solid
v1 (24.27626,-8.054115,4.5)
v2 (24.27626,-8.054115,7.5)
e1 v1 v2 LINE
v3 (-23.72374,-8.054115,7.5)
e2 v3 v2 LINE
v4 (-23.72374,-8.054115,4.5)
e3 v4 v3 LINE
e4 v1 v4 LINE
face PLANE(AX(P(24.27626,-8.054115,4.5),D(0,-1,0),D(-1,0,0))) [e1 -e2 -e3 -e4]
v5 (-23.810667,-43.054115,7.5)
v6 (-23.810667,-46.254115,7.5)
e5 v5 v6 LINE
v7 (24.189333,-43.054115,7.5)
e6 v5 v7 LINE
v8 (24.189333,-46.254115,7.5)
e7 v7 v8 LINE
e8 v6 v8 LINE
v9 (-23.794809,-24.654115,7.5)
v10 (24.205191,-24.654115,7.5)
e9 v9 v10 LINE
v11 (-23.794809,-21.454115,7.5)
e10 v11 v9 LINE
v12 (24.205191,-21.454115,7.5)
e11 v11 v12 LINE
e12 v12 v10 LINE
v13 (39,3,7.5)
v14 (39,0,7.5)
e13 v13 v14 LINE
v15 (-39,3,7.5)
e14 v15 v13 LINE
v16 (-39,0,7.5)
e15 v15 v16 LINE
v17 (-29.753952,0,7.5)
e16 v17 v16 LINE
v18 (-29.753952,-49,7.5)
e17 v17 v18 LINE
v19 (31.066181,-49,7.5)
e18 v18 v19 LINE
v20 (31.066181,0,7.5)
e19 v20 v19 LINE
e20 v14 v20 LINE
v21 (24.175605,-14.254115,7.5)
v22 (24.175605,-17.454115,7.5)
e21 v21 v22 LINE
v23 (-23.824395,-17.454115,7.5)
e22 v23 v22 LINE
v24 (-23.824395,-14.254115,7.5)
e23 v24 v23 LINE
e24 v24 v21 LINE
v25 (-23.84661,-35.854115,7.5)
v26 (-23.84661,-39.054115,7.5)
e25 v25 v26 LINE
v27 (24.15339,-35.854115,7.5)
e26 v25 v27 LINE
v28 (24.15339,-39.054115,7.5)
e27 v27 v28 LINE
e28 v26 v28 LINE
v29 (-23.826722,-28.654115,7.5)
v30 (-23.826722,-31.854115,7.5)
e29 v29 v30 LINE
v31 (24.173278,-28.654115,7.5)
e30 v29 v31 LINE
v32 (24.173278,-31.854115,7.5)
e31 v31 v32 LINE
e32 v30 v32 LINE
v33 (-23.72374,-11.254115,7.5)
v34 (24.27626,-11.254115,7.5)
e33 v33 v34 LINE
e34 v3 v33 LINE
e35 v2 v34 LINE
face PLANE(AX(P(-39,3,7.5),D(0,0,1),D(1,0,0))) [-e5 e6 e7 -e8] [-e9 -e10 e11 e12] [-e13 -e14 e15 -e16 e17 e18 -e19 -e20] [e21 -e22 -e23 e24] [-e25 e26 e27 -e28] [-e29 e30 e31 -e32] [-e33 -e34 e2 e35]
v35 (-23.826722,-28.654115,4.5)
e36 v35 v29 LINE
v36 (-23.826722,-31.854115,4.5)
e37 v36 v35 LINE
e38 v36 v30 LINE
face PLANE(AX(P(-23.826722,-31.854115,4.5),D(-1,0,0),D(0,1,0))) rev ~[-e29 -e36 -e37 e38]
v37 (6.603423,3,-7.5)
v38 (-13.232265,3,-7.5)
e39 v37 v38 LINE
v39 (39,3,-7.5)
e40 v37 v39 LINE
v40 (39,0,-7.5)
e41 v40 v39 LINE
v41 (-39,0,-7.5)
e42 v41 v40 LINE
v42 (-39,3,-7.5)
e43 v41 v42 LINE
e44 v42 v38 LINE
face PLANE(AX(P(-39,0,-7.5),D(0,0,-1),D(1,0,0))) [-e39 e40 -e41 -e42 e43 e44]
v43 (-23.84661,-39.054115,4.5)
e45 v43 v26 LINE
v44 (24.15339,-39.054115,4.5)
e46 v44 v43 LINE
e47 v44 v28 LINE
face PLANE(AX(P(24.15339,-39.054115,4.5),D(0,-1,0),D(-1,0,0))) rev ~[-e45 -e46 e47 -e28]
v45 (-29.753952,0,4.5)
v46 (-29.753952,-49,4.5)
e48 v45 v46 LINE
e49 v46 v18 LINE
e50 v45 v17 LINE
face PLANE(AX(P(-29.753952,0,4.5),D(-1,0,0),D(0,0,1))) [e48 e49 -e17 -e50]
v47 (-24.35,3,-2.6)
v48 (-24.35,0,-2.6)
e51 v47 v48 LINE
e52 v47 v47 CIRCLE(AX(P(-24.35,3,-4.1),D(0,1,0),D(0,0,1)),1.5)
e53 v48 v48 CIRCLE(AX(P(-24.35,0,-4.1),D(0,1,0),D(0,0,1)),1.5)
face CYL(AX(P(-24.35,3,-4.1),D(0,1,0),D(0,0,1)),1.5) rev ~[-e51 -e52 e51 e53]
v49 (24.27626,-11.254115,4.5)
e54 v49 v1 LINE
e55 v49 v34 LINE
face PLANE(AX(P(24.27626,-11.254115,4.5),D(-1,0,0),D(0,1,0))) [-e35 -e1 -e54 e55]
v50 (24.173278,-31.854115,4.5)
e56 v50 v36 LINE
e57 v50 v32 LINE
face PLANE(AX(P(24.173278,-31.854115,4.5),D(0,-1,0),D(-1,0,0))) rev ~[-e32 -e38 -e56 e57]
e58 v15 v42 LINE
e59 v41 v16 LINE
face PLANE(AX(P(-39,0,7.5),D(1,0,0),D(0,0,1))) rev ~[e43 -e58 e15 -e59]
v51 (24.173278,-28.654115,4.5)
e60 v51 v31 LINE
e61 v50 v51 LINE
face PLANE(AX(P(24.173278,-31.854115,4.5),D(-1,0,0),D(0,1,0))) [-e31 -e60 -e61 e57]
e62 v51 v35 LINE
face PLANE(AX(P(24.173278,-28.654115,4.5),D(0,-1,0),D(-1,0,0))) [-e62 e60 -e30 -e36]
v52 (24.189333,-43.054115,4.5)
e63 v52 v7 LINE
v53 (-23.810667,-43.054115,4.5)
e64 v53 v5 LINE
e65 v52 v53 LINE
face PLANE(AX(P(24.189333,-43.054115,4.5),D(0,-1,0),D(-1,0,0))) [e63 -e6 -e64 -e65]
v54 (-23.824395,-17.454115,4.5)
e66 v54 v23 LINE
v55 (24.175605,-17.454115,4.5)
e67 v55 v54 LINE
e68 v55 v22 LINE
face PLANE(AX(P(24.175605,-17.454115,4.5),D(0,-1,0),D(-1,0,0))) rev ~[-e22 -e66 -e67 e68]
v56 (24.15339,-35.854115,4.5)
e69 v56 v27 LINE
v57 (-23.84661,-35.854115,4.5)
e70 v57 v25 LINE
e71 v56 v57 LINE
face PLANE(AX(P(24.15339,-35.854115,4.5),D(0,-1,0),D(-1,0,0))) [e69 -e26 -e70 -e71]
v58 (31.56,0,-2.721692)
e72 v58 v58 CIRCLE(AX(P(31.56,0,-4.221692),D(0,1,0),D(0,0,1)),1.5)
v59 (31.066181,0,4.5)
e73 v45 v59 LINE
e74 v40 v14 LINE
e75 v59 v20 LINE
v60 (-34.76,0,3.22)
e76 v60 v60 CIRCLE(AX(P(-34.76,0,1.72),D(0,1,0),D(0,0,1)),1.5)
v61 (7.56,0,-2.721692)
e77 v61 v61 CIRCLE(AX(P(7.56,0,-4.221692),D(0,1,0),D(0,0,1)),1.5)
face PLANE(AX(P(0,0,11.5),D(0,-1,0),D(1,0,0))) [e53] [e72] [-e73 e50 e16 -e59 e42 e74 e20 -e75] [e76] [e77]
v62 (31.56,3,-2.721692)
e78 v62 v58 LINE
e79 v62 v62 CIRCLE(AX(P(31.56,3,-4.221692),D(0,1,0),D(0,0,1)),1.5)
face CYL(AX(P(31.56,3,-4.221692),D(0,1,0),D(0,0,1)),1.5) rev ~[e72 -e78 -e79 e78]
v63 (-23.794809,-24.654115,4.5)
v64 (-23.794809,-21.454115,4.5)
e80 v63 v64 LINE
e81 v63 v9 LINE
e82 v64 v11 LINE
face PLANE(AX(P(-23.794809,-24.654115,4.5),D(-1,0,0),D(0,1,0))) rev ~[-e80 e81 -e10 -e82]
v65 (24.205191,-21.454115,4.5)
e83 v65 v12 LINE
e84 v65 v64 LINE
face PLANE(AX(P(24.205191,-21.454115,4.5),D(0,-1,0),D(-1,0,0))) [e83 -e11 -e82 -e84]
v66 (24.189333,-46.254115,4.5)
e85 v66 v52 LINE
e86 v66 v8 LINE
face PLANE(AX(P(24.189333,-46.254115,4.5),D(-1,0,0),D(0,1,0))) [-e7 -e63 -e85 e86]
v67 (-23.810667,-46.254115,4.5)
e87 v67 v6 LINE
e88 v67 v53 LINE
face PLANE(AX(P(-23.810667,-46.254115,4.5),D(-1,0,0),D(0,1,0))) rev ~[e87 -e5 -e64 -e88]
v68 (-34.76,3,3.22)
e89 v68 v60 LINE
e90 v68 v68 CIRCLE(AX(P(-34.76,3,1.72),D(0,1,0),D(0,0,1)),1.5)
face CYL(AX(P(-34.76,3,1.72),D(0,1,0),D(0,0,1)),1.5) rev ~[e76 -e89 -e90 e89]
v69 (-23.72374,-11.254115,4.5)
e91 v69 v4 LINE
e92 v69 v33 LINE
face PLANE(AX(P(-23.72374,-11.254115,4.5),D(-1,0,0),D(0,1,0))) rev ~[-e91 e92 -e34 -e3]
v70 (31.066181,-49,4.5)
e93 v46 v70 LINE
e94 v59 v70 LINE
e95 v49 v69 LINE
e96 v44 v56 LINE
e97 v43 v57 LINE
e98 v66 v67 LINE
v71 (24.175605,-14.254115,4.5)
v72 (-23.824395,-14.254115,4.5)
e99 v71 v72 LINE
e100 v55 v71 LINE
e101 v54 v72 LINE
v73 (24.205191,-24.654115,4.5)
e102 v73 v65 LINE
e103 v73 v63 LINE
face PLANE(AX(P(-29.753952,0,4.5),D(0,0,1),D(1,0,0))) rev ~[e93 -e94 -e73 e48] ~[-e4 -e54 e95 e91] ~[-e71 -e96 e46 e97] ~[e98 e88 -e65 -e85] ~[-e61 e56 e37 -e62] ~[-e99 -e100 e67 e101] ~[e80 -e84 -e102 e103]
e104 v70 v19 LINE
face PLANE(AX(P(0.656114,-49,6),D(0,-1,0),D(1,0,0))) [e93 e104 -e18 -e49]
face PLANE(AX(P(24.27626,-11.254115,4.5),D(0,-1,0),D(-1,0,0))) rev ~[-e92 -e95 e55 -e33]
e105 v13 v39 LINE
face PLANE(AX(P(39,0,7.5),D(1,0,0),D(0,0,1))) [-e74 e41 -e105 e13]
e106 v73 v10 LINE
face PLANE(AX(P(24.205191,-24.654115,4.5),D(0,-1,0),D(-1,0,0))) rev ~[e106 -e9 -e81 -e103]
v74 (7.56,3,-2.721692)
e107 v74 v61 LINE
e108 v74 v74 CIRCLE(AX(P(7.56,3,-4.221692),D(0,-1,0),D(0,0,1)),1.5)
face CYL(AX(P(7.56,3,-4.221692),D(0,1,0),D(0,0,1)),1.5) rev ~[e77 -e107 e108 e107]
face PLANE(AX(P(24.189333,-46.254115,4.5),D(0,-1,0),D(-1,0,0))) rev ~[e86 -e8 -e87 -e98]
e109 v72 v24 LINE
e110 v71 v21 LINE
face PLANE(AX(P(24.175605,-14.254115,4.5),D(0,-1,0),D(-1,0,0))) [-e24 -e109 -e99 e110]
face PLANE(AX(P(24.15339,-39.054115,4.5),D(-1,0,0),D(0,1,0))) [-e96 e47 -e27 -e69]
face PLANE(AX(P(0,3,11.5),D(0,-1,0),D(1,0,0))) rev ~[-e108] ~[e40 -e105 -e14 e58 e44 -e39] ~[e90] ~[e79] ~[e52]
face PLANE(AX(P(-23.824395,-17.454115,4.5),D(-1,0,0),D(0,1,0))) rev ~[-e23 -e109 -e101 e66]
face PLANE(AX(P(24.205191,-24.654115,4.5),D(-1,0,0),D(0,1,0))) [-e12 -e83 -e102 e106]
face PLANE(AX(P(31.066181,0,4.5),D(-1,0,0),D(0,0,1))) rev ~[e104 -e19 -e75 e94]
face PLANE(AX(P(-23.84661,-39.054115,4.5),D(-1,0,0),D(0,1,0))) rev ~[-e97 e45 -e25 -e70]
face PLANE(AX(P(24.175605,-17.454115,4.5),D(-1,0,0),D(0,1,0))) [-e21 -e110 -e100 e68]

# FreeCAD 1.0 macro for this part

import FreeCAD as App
import Part
import Sketcher

V = App.Vector
Q = App.Units.Quantity

doc = App.newDocument("Part")
body = doc.addObject("PartDesign::Body", "Body")

# Sketch on XZ plane
sketch1 = body.newObject("Sketcher::SketchObject", "Sketch")
sketch1.AttachmentSupport = (doc.getObject("XZ_Plane"), [""])
sketch1.MapMode = "FlatFace"
sketch1.addGeometry([
    Part.LineSegment(V(-39, -8, 0), V(-39, 8, 0)),
    Part.LineSegment(V(-39, 8, 0), V(39, 8, 0)),
    Part.LineSegment(V(39, 8, 0), V(39, -8, 0)),
    Part.LineSegment(V(39, -8, 0), V(-39, -8, 0)),
], False)
sketch1.addConstraint([
    Sketcher.Constraint("Coincident", 0, 2, 1, 1),
    Sketcher.Constraint("Coincident", 1, 2, 2, 1),
    Sketcher.Constraint("Coincident", 2, 2, 3, 1),
    Sketcher.Constraint("Coincident", 3, 2, 0, 1),
    Sketcher.Constraint("Vertical", 0),
    Sketcher.Constraint("Horizontal", 1),
    Sketcher.Constraint("Vertical", 2),
    Sketcher.Constraint("Horizontal", 3),
    Sketcher.Constraint("Symmetric", 0, 2, 2, 2, -1, 1),
    Sketcher.Constraint("DistanceX", 1, 1, 1, 2, Q("78 mm")),
    Sketcher.Constraint("DistanceY", 0, 1, 0, 2, Q("15 mm")),
])
pad1 = body.newObject("PartDesign::Pad", "Pad")
pad1.Profile = sketch1
pad1.Length = 3
pad1.Reversed = True

# Sketch on XZ plane
sketch2 = body.newObject("Sketcher::SketchObject", "Sketch001")
sketch2.AttachmentSupport = (doc.getObject("XZ_Plane"), [""])
sketch2.MapMode = "FlatFace"
sketch2.AttachmentOffset = App.Placement(V(0, 0, -3), App.Rotation())
sketch2.addGeometry([
    Part.Circle(V(-34.8, 1.7, 0), V(0, 0, 1), 1.5),
    Part.Circle(V(-24.4, -4.1, 0), V(0, 0, 1), 1.5),
    Part.Circle(V(31.6, -4.2, 0), V(0, 0, 1), 1.5),
    Part.Circle(V(7.6, -4.2, 0), V(0, 0, 1), 1.5),
], False)
sketch2.addConstraint([
    Sketcher.Constraint("Equal", 0, 1),
    Sketcher.Constraint("Equal", 1, 2),
    Sketcher.Constraint("Equal", 2, 3),
    Sketcher.Constraint("Horizontal", 2, 3, 3, 3),
    Sketcher.Constraint("Diameter", 0, Q("3 mm")),
    Sketcher.Constraint("DistanceX", 3, 3, 2, 3, Q("24 mm")),
    Sketcher.Constraint("DistanceY", 1, 3, -1, 1, Q("4.1 mm")),
    Sketcher.Constraint("DistanceX", 0, 3, -1, 1, Q("34.76 mm")),
    Sketcher.Constraint("DistanceY", -1, 1, 0, 3, Q("1.72 mm")),
    Sketcher.Constraint("DistanceX", 1, 3, -1, 1, Q("24.35 mm")),
    Sketcher.Constraint("DistanceX", -1, 1, 2, 3, Q("31.56 mm")),
    Sketcher.Constraint("DistanceY", 2, 3, -1, 1, Q("4.221692 mm")),
])
pocket1 = body.newObject("PartDesign::Pocket", "Pocket")
pocket1.Profile = sketch2
pocket1.Length = 3
pocket1.Reversed = True

# Sketch on XZ plane
sketch3 = body.newObject("Sketcher::SketchObject", "Sketch002")
sketch3.AttachmentSupport = (doc.getObject("XZ_Plane"), [""])
sketch3.MapMode = "FlatFace"
sketch3.AttachmentOffset = App.Placement(V(0, 0, -3), App.Rotation())
sketch3.addGeometry(Part.Circle(V(-3, 1, 0), V(0, 0, 1), 6), False)
sketch3.addConstraint([
    Sketcher.Constraint("Diameter", 0, Q("12 mm")),
    Sketcher.Constraint("DistanceX", 0, 3, -1, 1, Q("3 mm")),
    Sketcher.Constraint("DistanceY", -1, 1, 0, 3, Q("1.234165 mm")),
])
pad2 = body.newObject("PartDesign::Pad", "Pad001")
pad2.Profile = sketch3
pad2.Length = 18
pad2.Reversed = True

# Sketch on XZ plane
sketch4 = body.newObject("Sketcher::SketchObject", "Sketch003")
sketch4.AttachmentSupport = (doc.getObject("XZ_Plane"), [""])
sketch4.MapMode = "FlatFace"
sketch4.AttachmentOffset = App.Placement(V(0, 0, -21), App.Rotation())
sketch4.addGeometry(Part.Circle(V(-3, 1.2, 0), V(0, 0, 1), 4.5), False)
sketch4.addConstraint([
    Sketcher.Constraint("Diameter", 0, Q("9 mm")),
    Sketcher.Constraint("DistanceX", 0, 3, -1, 1, Q("3 mm")),
    Sketcher.Constraint("DistanceY", -1, 1, 0, 3, Q("1.234165 mm")),
])
pocket2 = body.newObject("PartDesign::Pocket", "Pocket001")
pocket2.Profile = sketch4
pocket2.Length = 21
pocket2.Reversed = True

# Sketch on an angled plane
sketch5 = body.newObject("Sketcher::SketchObject", "Sketch004")
sketch5.Placement = App.Placement(V(-7.484763, 0, 5.284905), App.Rotation(V(-0.576795601, 0, -0.816888508), V(0, -1, 0), V(-0.816888508, 0, 0.576795601), "ZXY"))
sketch5.addGeometry(Part.Circle(V(0.7, -17.3, 0), V(0, 0, 1), 1.5), False)
sketch5.addConstraint([
    Sketcher.Constraint("Diameter", 0, Q("3 mm")),
    Sketcher.Constraint("DistanceX", -1, 1, 0, 3, Q("0.722211 mm")),
    Sketcher.Constraint("DistanceY", 0, 3, -1, 1, Q("17.342107 mm")),
])
doc.recompute()
hole = body.newObject("PartDesign::Hole", "Hole")
hole.Profile = sketch5
hole.ThreadType = "None"
hole.Diameter = 3
hole.DepthType = "Dimension"
hole.Depth = 4.5
hole.DrillPoint = "Angled"
hole.DrillPointAngle = 90

# Sketch on an angled plane
sketch6 = body.newObject("Sketcher::SketchObject", "Sketch005")
sketch6.Placement = App.Placement(V(3.305316, 0, 3.577367), App.Rotation(V(0.734483043, 0, -0.67862704), V(0, 1, 0), V(0.67862704, 0, 0.734483043), "ZXY"))
sketch6.addGeometry(Part.Circle(V(-3, 17.2, 0), V(0, 0, 1), 1.5), False)
sketch6.addConstraint([
    Sketcher.Constraint("Diameter", 0, Q("3 mm")),
    Sketcher.Constraint("DistanceX", 0, 3, -1, 1, Q("3.040983 mm")),
    Sketcher.Constraint("DistanceY", -1, 1, 0, 3, Q("17.164817 mm")),
])
doc.recompute()
hole2 = body.newObject("PartDesign::Hole", "Hole001")
hole2.Profile = sketch6
hole2.ThreadType = "None"
hole2.Diameter = 3
hole2.DepthType = "Dimension"
hole2.Depth = 4.5
hole2.DrillPoint = "Angled"
hole2.DrillPointAngle = 90

# Sketch on XY plane
sketch7 = body.newObject("Sketcher::SketchObject", "Sketch006")
sketch7.AttachmentSupport = (doc.getObject("XY_Plane"), [""])
sketch7.MapMode = "FlatFace"
sketch7.AttachmentOffset = App.Placement(V(0, 0, -7.5), App.Rotation())
sketch7.addGeometry([
    Part.LineSegment(V(0, 13, 0), V(0, 3, 0)),
    Part.LineSegment(V(0, 3, 0), V(-6, 3, 0)),
    Part.LineSegment(V(-6, 3, 0), V(-6, 13, 0)),
    Part.LineSegment(V(-6, 13, 0), V(0, 13, 0)),
], False)
sketch7.addConstraint([
    Sketcher.Constraint("Coincident", 0, 2, 1, 1),
    Sketcher.Constraint("Coincident", 1, 2, 2, 1),
    Sketcher.Constraint("Coincident", 2, 2, 3, 1),
    Sketcher.Constraint("Coincident", 3, 2, 0, 1),
    Sketcher.Constraint("Vertical", 0),
    Sketcher.Constraint("Horizontal", 1),
    Sketcher.Constraint("Vertical", 2),
    Sketcher.Constraint("Horizontal", 3),
    Sketcher.Constraint("PointOnObject", 0, 2, -2),
    Sketcher.Constraint("DistanceX", 1, 2, 1, 1, Q("6 mm")),
    Sketcher.Constraint("DistanceY", 0, 2, 0, 1, Q("10 mm")),
    Sketcher.Constraint("DistanceY", -1, 1, 0, 2, Q("3 mm")),
])
pocket3 = body.newObject("PartDesign::Pocket", "Pocket002")
pocket3.Profile = sketch7
pocket3.Length = 7
pocket3.Reversed = True

# Sketch on XY plane
sketch8 = body.newObject("Sketcher::SketchObject", "Sketch007")
sketch8.AttachmentSupport = (doc.getObject("XY_Plane"), [""])
sketch8.MapMode = "FlatFace"
sketch8.AttachmentOffset = App.Placement(V(0, 0, -7.5), App.Rotation())
sketch8.addGeometry([
    Part.LineSegment(V(7, 25, 0), V(7, 3, 0)),
    Part.LineSegment(V(7, 3, 0), V(-13, 3, 0)),
    Part.LineSegment(V(-13, 3, 0), V(-13, 25, 0)),
    Part.LineSegment(V(-13, 25, 0), V(7, 25, 0)),
], False)
sketch8.addConstraint([
    Sketcher.Constraint("Coincident", 0, 2, 1, 1),
    Sketcher.Constraint("Coincident", 1, 2, 2, 1),
    Sketcher.Constraint("Coincident", 2, 2, 3, 1),
    Sketcher.Constraint("Coincident", 3, 2, 0, 1),
    Sketcher.Constraint("Vertical", 0),
    Sketcher.Constraint("Horizontal", 1),
    Sketcher.Constraint("Vertical", 2),
    Sketcher.Constraint("Horizontal", 3),
    Sketcher.Constraint("DistanceY", -1, 1, 0, 2, Q("3 mm")),
    Sketcher.Constraint("DistanceX", 1, 2, 1, 1, Q("19.835687 mm")),
    Sketcher.Constraint("DistanceY", 0, 2, 0, 1, Q("21.610205 mm")),
    Sketcher.Constraint("DistanceX", -1, 1, 0, 2, Q("6.603423 mm")),
])
pocket4 = body.newObject("PartDesign::Pocket", "Pocket003")
pocket4.Profile = sketch8
pocket4.Length = 20
pocket4.Reversed = True

# Sketch on XZ plane
sketch9 = body.newObject("Sketcher::SketchObject", "Sketch008")
sketch9.AttachmentSupport = (doc.getObject("XZ_Plane"), [""])
sketch9.MapMode = "FlatFace"
sketch9.AttachmentOffset = App.Placement(V(0, 0, -3), App.Rotation())
sketch9.addGeometry([
    Part.LineSegment(V(-9, -4, 0), V(-9, 7, 0)),
    Part.LineSegment(V(-9, 7, 0), V(3, 7, 0)),
    Part.LineSegment(V(3, 7, 0), V(3, -4, 0)),
    Part.LineSegment(V(3, -4, 0), V(-9, -4, 0)),
], False)
sketch9.addConstraint([
    Sketcher.Constraint("Coincident", 0, 2, 1, 1),
    Sketcher.Constraint("Coincident", 1, 2, 2, 1),
    Sketcher.Constraint("Coincident", 2, 2, 3, 1),
    Sketcher.Constraint("Coincident", 3, 2, 0, 1),
    Sketcher.Constraint("Vertical", 0),
    Sketcher.Constraint("Horizontal", 1),
    Sketcher.Constraint("Vertical", 2),
    Sketcher.Constraint("Horizontal", 3),
    Sketcher.Constraint("DistanceX", 1, 1, 1, 2, Q("11.523038 mm")),
    Sketcher.Constraint("DistanceY", 0, 1, 0, 2, Q("10.490313 mm")),
    Sketcher.Constraint("DistanceY", -1, 1, 0, 2, Q("6.50865 mm")),
    Sketcher.Constraint("DistanceX", -1, 1, 1, 2, Q("2.772052 mm")),
])
pad3 = body.newObject("PartDesign::Pad", "Pad002")
pad3.Profile = sketch9
pad3.Length = 3

# Sketch on XZ plane
sketch10 = body.newObject("Sketcher::SketchObject", "Sketch009")
sketch10.AttachmentSupport = (doc.getObject("XZ_Plane"), [""])
sketch10.MapMode = "FlatFace"
sketch10.addGeometry([
    Part.LineSegment(V(-39, 16, 0), V(-39, 8, 0)),
    Part.LineSegment(V(-39, 8, 0), V(39, 8, 0)),
    Part.LineSegment(V(39, 8, 0), V(39, 16, 0)),
    Part.LineSegment(V(39, 16, 0), V(-39, 16, 0)),
], False)
sketch10.addConstraint([
    Sketcher.Constraint("Coincident", 0, 2, 1, 1),
    Sketcher.Constraint("Coincident", 1, 2, 2, 1),
    Sketcher.Constraint("Coincident", 2, 2, 3, 1),
    Sketcher.Constraint("Coincident", 3, 2, 0, 1),
    Sketcher.Constraint("Vertical", 0),
    Sketcher.Constraint("Horizontal", 1),
    Sketcher.Constraint("Vertical", 2),
    Sketcher.Constraint("Horizontal", 3),
    Sketcher.Constraint("DistanceX", 1, 1, 1, 2, Q("78 mm")),
    Sketcher.Constraint("DistanceY", 0, 2, 0, 1, Q("8 mm")),
    Sketcher.Constraint("DistanceX", 0, 2, -1, 1, Q("39 mm")),
    Sketcher.Constraint("DistanceY", -1, 1, 0, 2, Q("7.5 mm")),
])
pad4 = body.newObject("PartDesign::Pad", "Pad003")
pad4.Profile = sketch10
pad4.Length = 3
pad4.Reversed = True

# Sketch on XZ plane
sketch11 = body.newObject("Sketcher::SketchObject", "Sketch010")
sketch11.AttachmentSupport = (doc.getObject("XZ_Plane"), [""])
sketch11.MapMode = "FlatFace"
sketch11.addGeometry([
    Part.LineSegment(V(-17.5, 15.5, 0), V(-17.5, 13, 0)),
    Part.LineSegment(V(-17.5, 13, 0), V(19.2, 13, 0)),
    Part.LineSegment(V(19.2, 13, 0), V(19.2, 15.5, 0)),
    Part.LineSegment(V(19.2, 15.5, 0), V(-17.5, 15.5, 0)),
], False)
sketch11.addConstraint([
    Sketcher.Constraint("Coincident", 0, 2, 1, 1),
    Sketcher.Constraint("Coincident", 1, 2, 2, 1),
    Sketcher.Constraint("Coincident", 2, 2, 3, 1),
    Sketcher.Constraint("Coincident", 3, 2, 0, 1),
    Sketcher.Constraint("Vertical", 0),
    Sketcher.Constraint("Horizontal", 1),
    Sketcher.Constraint("Vertical", 2),
    Sketcher.Constraint("Horizontal", 3),
    Sketcher.Constraint("DistanceY", 0, 2, 0, 1, Q("2.5 mm")),
    Sketcher.Constraint("DistanceY", -1, 1, 0, 2, Q("13 mm")),
    Sketcher.Constraint("DistanceX", 1, 1, 1, 2, Q("36.767904 mm")),
    Sketcher.Constraint("DistanceX", -1, 1, 1, 2, Q("19.223189 mm")),
])
pad5 = body.newObject("PartDesign::Pad", "Pad004")
pad5.Profile = sketch11
pad5.Length = 12.5

# Sketch on XY plane
sketch12 = body.newObject("Sketcher::SketchObject", "Sketch011")
sketch12.AttachmentSupport = (doc.getObject("XY_Plane"), [""])
sketch12.MapMode = "FlatFace"
sketch12.AttachmentOffset = App.Placement(V(0, 0, 13), App.Rotation())
sketch12.addGeometry([
    Part.Circle(V(8.6, -6.1, 0), V(0, 0, 1), 1.6),
    Part.Circle(V(-2.6, -6.1, 0), V(0, 0, 1), 1.6),
], False)
sketch12.addConstraint([
    Sketcher.Constraint("Equal", 0, 1),
    Sketcher.Constraint("Horizontal", 0, 3, 1, 3),
    Sketcher.Constraint("Diameter", 0, Q("3.3 mm")),
    Sketcher.Constraint("DistanceX", 1, 3, 0, 3, Q("11.2 mm")),
    Sketcher.Constraint("DistanceX", -1, 1, 0, 3, Q("8.603189 mm")),
    Sketcher.Constraint("DistanceY", 0, 3, -1, 1, Q("6.055923 mm")),
])
pocket5 = body.newObject("PartDesign::Pocket", "Pocket004")
pocket5.Profile = sketch12
pocket5.Length = 12.5
pocket5.Reversed = True

# Sketch on XY plane
sketch13 = body.newObject("Sketcher::SketchObject", "Sketch012")
sketch13.AttachmentSupport = (doc.getObject("XY_Plane"), [""])
sketch13.MapMode = "FlatFace"
sketch13.AttachmentOffset = App.Placement(V(0, 0, 13), App.Rotation())
sketch13.addGeometry([
    Part.LineSegment(V(-0.2, -3.7, 0), V(-0.2, -9.1, 0)),
    Part.LineSegment(V(-0.2, -9.1, 0), V(-4.4, -9.1, 0)),
    Part.LineSegment(V(-4.4, -9.1, 0), V(-4.4, -3.7, 0)),
    Part.LineSegment(V(-4.4, -3.7, 0), V(-0.2, -3.7, 0)),
], False)
sketch13.addConstraint([
    Sketcher.Constraint("Coincident", 0, 2, 1, 1),
    Sketcher.Constraint("Coincident", 1, 2, 2, 1),
    Sketcher.Constraint("Coincident", 2, 2, 3, 1),
    Sketcher.Constraint("Coincident", 3, 2, 0, 1),
    Sketcher.Constraint("Vertical", 0),
    Sketcher.Constraint("Horizontal", 1),
    Sketcher.Constraint("Vertical", 2),
    Sketcher.Constraint("Horizontal", 3),
    Sketcher.Constraint("DistanceY", 0, 2, 0, 1, Q("5.364092 mm")),
    Sketcher.Constraint("DistanceX", 1, 2, 1, 1, Q("4.236608 mm")),
    Sketcher.Constraint("DistanceX", 0, 2, -1, 1, Q("0.212365 mm")),
    Sketcher.Constraint("DistanceY", 0, 2, -1, 1, Q("9.108527 mm")),
])
pad6 = body.newObject("PartDesign::Pad", "Pad005")
pad6.Profile = sketch13
pad6.Length = 2.5

# Sketch on XY plane
sketch14 = body.newObject("Sketcher::SketchObject", "Sketch013")
sketch14.AttachmentSupport = (doc.getObject("XY_Plane"), [""])
sketch14.MapMode = "FlatFace"
sketch14.AttachmentOffset = App.Placement(V(0, 0, 13), App.Rotation())
sketch14.addGeometry(Part.Circle(V(-4.2, -6.1, 0), V(0, 0, 1), 1.6), False)
sketch14.addConstraint([
    Sketcher.Constraint("Diameter", 0, Q("3.2 mm")),
    Sketcher.Constraint("DistanceX", 0, 3, -1, 1, Q("4.196811 mm")),
    Sketcher.Constraint("DistanceY", 0, 3, -1, 1, Q("6.055923 mm")),
])
pocket6 = body.newObject("PartDesign::Pocket", "Pocket005")
pocket6.Profile = sketch14
pocket6.Length = 2.5
pocket6.Reversed = True

# Sketch on XY plane
sketch15 = body.newObject("Sketcher::SketchObject", "Sketch014")
sketch15.AttachmentSupport = (doc.getObject("XY_Plane"), [""])
sketch15.MapMode = "FlatFace"
sketch15.AttachmentOffset = App.Placement(V(0, 0, 13), App.Rotation())
sketch15.addGeometry([
    Part.LineSegment(V(13, -3, 0), V(13, -10, 0)),
    Part.LineSegment(V(13, -10, 0), V(-8, -10, 0)),
    Part.LineSegment(V(-8, -10, 0), V(-8, -3, 0)),
    Part.LineSegment(V(-8, -3, 0), V(13, -3, 0)),
], False)
sketch15.addConstraint([
    Sketcher.Constraint("Coincident", 0, 2, 1, 1),
    Sketcher.Constraint("Coincident", 1, 2, 2, 1),
    Sketcher.Constraint("Coincident", 2, 2, 3, 1),
    Sketcher.Constraint("Coincident", 3, 2, 0, 1),
    Sketcher.Constraint("Vertical", 0),
    Sketcher.Constraint("Horizontal", 1),
    Sketcher.Constraint("Vertical", 2),
    Sketcher.Constraint("Horizontal", 3),
    Sketcher.Constraint("DistanceX", 1, 2, 1, 1, Q("21.346012 mm")),
    Sketcher.Constraint("DistanceY", 0, 2, 0, 1, Q("6.594355 mm")),
    Sketcher.Constraint("DistanceY", 0, 2, -1, 1, Q("9.988919 mm")),
    Sketcher.Constraint("DistanceX", 1, 2, -1, 1, Q("8.29369 mm")),
])
pad7 = body.newObject("PartDesign::Pad", "Pad006")
pad7.Profile = sketch15
pad7.Length = 2.5

# Sketch on XY plane
sketch16 = body.newObject("Sketcher::SketchObject", "Sketch015")
sketch16.AttachmentSupport = (doc.getObject("XY_Plane"), [""])
sketch16.MapMode = "FlatFace"
sketch16.AttachmentOffset = App.Placement(V(0, 0, 13), App.Rotation())
sketch16.addGeometry([
    Part.LineSegment(V(19, -12, 0), V(19, -18, 0)),
    Part.LineSegment(V(19, -18, 0), V(-18, -18, 0)),
    Part.LineSegment(V(-18, -18, 0), V(-18, -12, 0)),
    Part.LineSegment(V(-18, -12, 0), V(19, -12, 0)),
], False)
sketch16.addConstraint([
    Sketcher.Constraint("Coincident", 0, 2, 1, 1),
    Sketcher.Constraint("Coincident", 1, 2, 2, 1),
    Sketcher.Constraint("Coincident", 2, 2, 3, 1),
    Sketcher.Constraint("Coincident", 3, 2, 0, 1),
    Sketcher.Constraint("Vertical", 0),
    Sketcher.Constraint("Horizontal", 1),
    Sketcher.Constraint("Vertical", 2),
    Sketcher.Constraint("Horizontal", 3),
    Sketcher.Constraint("DistanceY", 2, 2, -1, 1, Q("12.5 mm")),
    Sketcher.Constraint("DistanceX", 1, 2, 1, 1, Q("36.767231 mm")),
    Sketcher.Constraint("DistanceY", 0, 2, 0, 1, Q("5.918195 mm")),
    Sketcher.Constraint("DistanceX", -1, 1, 0, 2, Q("19.223189 mm")),
])
pad8 = body.newObject("PartDesign::Pad", "Pad007")
pad8.Profile = sketch16
pad8.Length = 2.5

# Sketch on XY plane
sketch17 = body.newObject("Sketcher::SketchObject", "Sketch016")
sketch17.AttachmentSupport = (doc.getObject("XY_Plane"), [""])
sketch17.MapMode = "FlatFace"
sketch17.AttachmentOffset = App.Placement(V(0, 0, 13), App.Rotation())
sketch17.addGeometry([
    Part.LineSegment(V(14.5, -11.6, 0), V(14.5, -15.1, 0)),
    Part.LineSegment(V(14.5, -15.1, 0), V(-13.2, -15.1, 0)),
    Part.LineSegment(V(-13.2, -15.1, 0), V(-13.2, -11.6, 0)),
    Part.LineSegment(V(-13.2, -11.6, 0), V(14.5, -11.6, 0)),
], False)
sketch17.addConstraint([
    Sketcher.Constraint("Coincident", 0, 2, 1, 1),
    Sketcher.Constraint("Coincident", 1, 2, 2, 1),
    Sketcher.Constraint("Coincident", 2, 2, 3, 1),
    Sketcher.Constraint("Coincident", 3, 2, 0, 1),
    Sketcher.Constraint("Vertical", 0),
    Sketcher.Constraint("Horizontal", 1),
    Sketcher.Constraint("Vertical", 2),
    Sketcher.Constraint("Horizontal", 3),
    Sketcher.Constraint("DistanceY", 0, 2, 0, 1, Q("3.5 mm")),
    Sketcher.Constraint("DistanceX", 1, 2, 1, 1, Q("27.66034 mm")),
    Sketcher.Constraint("DistanceY", 0, 2, -1, 1, Q("15.144191 mm")),
    Sketcher.Constraint("DistanceX", -1, 1, 0, 2, Q("14.463934 mm")),
])
pocket7 = body.newObject("PartDesign::Pocket", "Pocket006")
pocket7.Profile = sketch17
pocket7.Length = 2.5
pocket7.Reversed = True

# Sketch on XZ plane
sketch18 = body.newObject("Sketcher::SketchObject", "Sketch017")
sketch18.AttachmentSupport = (doc.getObject("XZ_Plane"), [""])
sketch18.MapMode = "FlatFace"
sketch18.AttachmentOffset = App.Placement(V(0, 0, -3), App.Rotation())
sketch18.addGeometry([
    Part.LineSegment(V(-39, 8, 0), V(-39, 16, 0)),
    Part.LineSegment(V(-39, 16, 0), V(39, 16, 0)),
    Part.LineSegment(V(39, 16, 0), V(39, 8, 0)),
    Part.LineSegment(V(39, 8, 0), V(-39, 8, 0)),
], False)
sketch18.addConstraint([
    Sketcher.Constraint("Coincident", 0, 2, 1, 1),
    Sketcher.Constraint("Coincident", 1, 2, 2, 1),
    Sketcher.Constraint("Coincident", 2, 2, 3, 1),
    Sketcher.Constraint("Coincident", 3, 2, 0, 1),
    Sketcher.Constraint("Vertical", 0),
    Sketcher.Constraint("Horizontal", 1),
    Sketcher.Constraint("Vertical", 2),
    Sketcher.Constraint("Horizontal", 3),
    Sketcher.Constraint("DistanceX", 1, 1, 1, 2, Q("78 mm")),
    Sketcher.Constraint("DistanceY", 0, 1, 0, 2, Q("8 mm")),
    Sketcher.Constraint("DistanceX", 0, 2, -1, 1, Q("39 mm")),
    Sketcher.Constraint("DistanceY", -1, 1, 0, 2, Q("15.5 mm")),
])
pocket8 = body.newObject("PartDesign::Pocket", "Pocket007")
pocket8.Profile = sketch18
pocket8.Length = 100
pocket8.Reversed = True

# Sketch on XZ plane
sketch19 = body.newObject("Sketcher::SketchObject", "Sketch018")
sketch19.AttachmentSupport = (doc.getObject("XZ_Plane"), [""])
sketch19.MapMode = "FlatFace"
sketch19.addGeometry([
    Part.LineSegment(V(-29.8, 7.5, 0), V(-29.8, 4.5, 0)),
    Part.LineSegment(V(-29.8, 4.5, 0), V(31.1, 4.5, 0)),
    Part.LineSegment(V(31.1, 4.5, 0), V(31.1, 7.5, 0)),
    Part.LineSegment(V(31.1, 7.5, 0), V(-29.8, 7.5, 0)),
], False)
sketch19.addConstraint([
    Sketcher.Constraint("Coincident", 0, 2, 1, 1),
    Sketcher.Constraint("Coincident", 1, 2, 2, 1),
    Sketcher.Constraint("Coincident", 2, 2, 3, 1),
    Sketcher.Constraint("Coincident", 3, 2, 0, 1),
    Sketcher.Constraint("Vertical", 0),
    Sketcher.Constraint("Horizontal", 1),
    Sketcher.Constraint("Vertical", 2),
    Sketcher.Constraint("Horizontal", 3),
    Sketcher.Constraint("DistanceY", 0, 2, 0, 1, Q("3 mm")),
    Sketcher.Constraint("DistanceY", -1, 1, 0, 2, Q("4.5 mm")),
    Sketcher.Constraint("DistanceX", 1, 1, 1, 2, Q("60.820133 mm")),
    Sketcher.Constraint("DistanceX", 0, 2, -1, 1, Q("29.753952 mm")),
])
pad9 = body.newObject("PartDesign::Pad", "Pad008")
pad9.Profile = sketch19
pad9.Length = 49

# Sketch on XY plane
sketch20 = body.newObject("Sketcher::SketchObject", "Sketch019")
sketch20.AttachmentSupport = (doc.getObject("XY_Plane"), [""])
sketch20.MapMode = "FlatFace"
sketch20.AttachmentOffset = App.Placement(V(0, 0, 4.5), App.Rotation())
sketch20.addGeometry([
    Part.LineSegment(V(24.2, -14.3, 0), V(24.2, -17.5, 0)),  # 0
    Part.LineSegment(V(24.2, -17.5, 0), V(-23.8, -17.5, 0)),  # 1
    Part.LineSegment(V(-23.8, -17.5, 0), V(-23.8, -14.3, 0)),  # 2
    Part.LineSegment(V(-23.8, -14.3, 0), V(24.2, -14.3, 0)),  # 3
    Part.LineSegment(V(24.2, -21.5, 0), V(24.2, -24.7, 0)),  # 4
    Part.LineSegment(V(24.2, -24.7, 0), V(-23.8, -24.7, 0)),  # 5
    Part.LineSegment(V(-23.8, -24.7, 0), V(-23.8, -21.5, 0)),  # 6
    Part.LineSegment(V(-23.8, -21.5, 0), V(24.2, -21.5, 0)),  # 7
    Part.LineSegment(V(24.2, -28.7, 0), V(24.2, -31.9, 0)),  # 8
    Part.LineSegment(V(24.2, -31.9, 0), V(-23.8, -31.9, 0)),  # 9
    Part.LineSegment(V(-23.8, -31.9, 0), V(-23.8, -28.7, 0)),  # 10
    Part.LineSegment(V(-23.8, -28.7, 0), V(24.2, -28.7, 0)),  # 11
    Part.LineSegment(V(24.2, -35.9, 0), V(24.2, -39.1, 0)),  # 12
    Part.LineSegment(V(24.2, -39.1, 0), V(-23.8, -39.1, 0)),  # 13
    Part.LineSegment(V(-23.8, -39.1, 0), V(-23.8, -35.9, 0)),  # 14
    Part.LineSegment(V(-23.8, -35.9, 0), V(24.2, -35.9, 0)),  # 15
    Part.LineSegment(V(24.2, -43.1, 0), V(24.2, -46.3, 0)),  # 16
    Part.LineSegment(V(24.2, -46.3, 0), V(-23.8, -46.3, 0)),  # 17
    Part.LineSegment(V(-23.8, -46.3, 0), V(-23.8, -43.1, 0)),  # 18
    Part.LineSegment(V(-23.8, -43.1, 0), V(24.2, -43.1, 0)),  # 19
    Part.LineSegment(V(24.3, -8.1, 0), V(24.3, -11.3, 0)),  # 20
    Part.LineSegment(V(24.3, -11.3, 0), V(-23.7, -11.3, 0)),  # 21
    Part.LineSegment(V(-23.7, -11.3, 0), V(-23.7, -8.1, 0)),  # 22
    Part.LineSegment(V(-23.7, -8.1, 0), V(24.3, -8.1, 0)),  # 23
], False)
sketch20.addConstraint([
    Sketcher.Constraint("Coincident", 0, 2, 1, 1),
    Sketcher.Constraint("Coincident", 1, 2, 2, 1),
    Sketcher.Constraint("Coincident", 2, 2, 3, 1),
    Sketcher.Constraint("Coincident", 3, 2, 0, 1),
    Sketcher.Constraint("Coincident", 4, 2, 5, 1),
    Sketcher.Constraint("Coincident", 5, 2, 6, 1),
    Sketcher.Constraint("Coincident", 6, 2, 7, 1),
    Sketcher.Constraint("Coincident", 7, 2, 4, 1),
    Sketcher.Constraint("Coincident", 8, 2, 9, 1),
    Sketcher.Constraint("Coincident", 9, 2, 10, 1),
    Sketcher.Constraint("Coincident", 10, 2, 11, 1),
    Sketcher.Constraint("Coincident", 11, 2, 8, 1),
    Sketcher.Constraint("Coincident", 12, 2, 13, 1),
    Sketcher.Constraint("Coincident", 13, 2, 14, 1),
    Sketcher.Constraint("Coincident", 14, 2, 15, 1),
    Sketcher.Constraint("Coincident", 15, 2, 12, 1),
    Sketcher.Constraint("Coincident", 16, 2, 17, 1),
    Sketcher.Constraint("Coincident", 17, 2, 18, 1),
    Sketcher.Constraint("Coincident", 18, 2, 19, 1),
    Sketcher.Constraint("Coincident", 19, 2, 16, 1),
    Sketcher.Constraint("Coincident", 20, 2, 21, 1),
    Sketcher.Constraint("Coincident", 21, 2, 22, 1),
    Sketcher.Constraint("Coincident", 22, 2, 23, 1),
    Sketcher.Constraint("Coincident", 23, 2, 20, 1),
    Sketcher.Constraint("Vertical", 0),
    Sketcher.Constraint("Horizontal", 1),
    Sketcher.Constraint("Vertical", 2),
    Sketcher.Constraint("Horizontal", 3),
    Sketcher.Constraint("Vertical", 4),
    Sketcher.Constraint("Horizontal", 5),
    Sketcher.Constraint("Vertical", 6),
    Sketcher.Constraint("Horizontal", 7),
    Sketcher.Constraint("Vertical", 8),
    Sketcher.Constraint("Horizontal", 9),
    Sketcher.Constraint("Vertical", 10),
    Sketcher.Constraint("Horizontal", 11),
    Sketcher.Constraint("Vertical", 12),
    Sketcher.Constraint("Horizontal", 13),
    Sketcher.Constraint("Vertical", 14),
    Sketcher.Constraint("Horizontal", 15),
    Sketcher.Constraint("Vertical", 16),
    Sketcher.Constraint("Horizontal", 17),
    Sketcher.Constraint("Vertical", 18),
    Sketcher.Constraint("Horizontal", 19),
    Sketcher.Constraint("Vertical", 20),
    Sketcher.Constraint("Horizontal", 21),
    Sketcher.Constraint("Vertical", 22),
    Sketcher.Constraint("Horizontal", 23),
    Sketcher.Constraint("Equal", 3, 5),
    Sketcher.Constraint("Equal", 7, 9),
    Sketcher.Constraint("Equal", 11, 13),
    Sketcher.Constraint("Equal", 15, 17),
    Sketcher.Constraint("Equal", 19, 21),
    Sketcher.Constraint("Equal", 2, 4),
    Sketcher.Constraint("Equal", 6, 8),
    Sketcher.Constraint("Equal", 10, 12),
    Sketcher.Constraint("Equal", 14, 16),
    Sketcher.Constraint("Equal", 18, 20),
    Sketcher.Constraint("DistanceX", 1, 2, 1, 1, Q("48 mm")),
    Sketcher.Constraint("DistanceY", 0, 2, 0, 1, Q("3.2 mm")),
    Sketcher.Constraint("DistanceY", 6, 2, 1, 2, Q("4 mm")),
    Sketcher.Constraint("DistanceY", 10, 2, 5, 2, Q("4 mm")),
    Sketcher.Constraint("DistanceY", 14, 2, 9, 2, Q("4 mm")),
    Sketcher.Constraint("DistanceY", 18, 2, 13, 2, Q("4 mm")),
    Sketcher.Constraint("DistanceY", 3, 2, 20, 2, Q("3 mm")),
    Sketcher.Constraint("DistanceX", 12, 2, 4, 2, Q("0.051802 mm")),
    Sketcher.Constraint("DistanceX", -1, 1, 4, 2, Q("24.205191 mm")),
    Sketcher.Constraint("DistanceX", -1, 1, 20, 2, Q("24.27626 mm")),
    Sketcher.Constraint("DistanceX", 12, 2, 8, 2, Q("0.019888 mm")),
    Sketcher.Constraint("DistanceX", -1, 1, 0, 2, Q("24.175605 mm")),
    Sketcher.Constraint("DistanceY", 0, 2, -1, 1, Q("17.454115 mm")),
    Sketcher.Constraint("DistanceX", -1, 1, 16, 2, Q("24.189333 mm")),
])
pocket9 = body.newObject("PartDesign::Pocket", "Pocket008")
pocket9.Profile = sketch20
pocket9.Length = 49
pocket9.Reversed = True

doc.recompute()
